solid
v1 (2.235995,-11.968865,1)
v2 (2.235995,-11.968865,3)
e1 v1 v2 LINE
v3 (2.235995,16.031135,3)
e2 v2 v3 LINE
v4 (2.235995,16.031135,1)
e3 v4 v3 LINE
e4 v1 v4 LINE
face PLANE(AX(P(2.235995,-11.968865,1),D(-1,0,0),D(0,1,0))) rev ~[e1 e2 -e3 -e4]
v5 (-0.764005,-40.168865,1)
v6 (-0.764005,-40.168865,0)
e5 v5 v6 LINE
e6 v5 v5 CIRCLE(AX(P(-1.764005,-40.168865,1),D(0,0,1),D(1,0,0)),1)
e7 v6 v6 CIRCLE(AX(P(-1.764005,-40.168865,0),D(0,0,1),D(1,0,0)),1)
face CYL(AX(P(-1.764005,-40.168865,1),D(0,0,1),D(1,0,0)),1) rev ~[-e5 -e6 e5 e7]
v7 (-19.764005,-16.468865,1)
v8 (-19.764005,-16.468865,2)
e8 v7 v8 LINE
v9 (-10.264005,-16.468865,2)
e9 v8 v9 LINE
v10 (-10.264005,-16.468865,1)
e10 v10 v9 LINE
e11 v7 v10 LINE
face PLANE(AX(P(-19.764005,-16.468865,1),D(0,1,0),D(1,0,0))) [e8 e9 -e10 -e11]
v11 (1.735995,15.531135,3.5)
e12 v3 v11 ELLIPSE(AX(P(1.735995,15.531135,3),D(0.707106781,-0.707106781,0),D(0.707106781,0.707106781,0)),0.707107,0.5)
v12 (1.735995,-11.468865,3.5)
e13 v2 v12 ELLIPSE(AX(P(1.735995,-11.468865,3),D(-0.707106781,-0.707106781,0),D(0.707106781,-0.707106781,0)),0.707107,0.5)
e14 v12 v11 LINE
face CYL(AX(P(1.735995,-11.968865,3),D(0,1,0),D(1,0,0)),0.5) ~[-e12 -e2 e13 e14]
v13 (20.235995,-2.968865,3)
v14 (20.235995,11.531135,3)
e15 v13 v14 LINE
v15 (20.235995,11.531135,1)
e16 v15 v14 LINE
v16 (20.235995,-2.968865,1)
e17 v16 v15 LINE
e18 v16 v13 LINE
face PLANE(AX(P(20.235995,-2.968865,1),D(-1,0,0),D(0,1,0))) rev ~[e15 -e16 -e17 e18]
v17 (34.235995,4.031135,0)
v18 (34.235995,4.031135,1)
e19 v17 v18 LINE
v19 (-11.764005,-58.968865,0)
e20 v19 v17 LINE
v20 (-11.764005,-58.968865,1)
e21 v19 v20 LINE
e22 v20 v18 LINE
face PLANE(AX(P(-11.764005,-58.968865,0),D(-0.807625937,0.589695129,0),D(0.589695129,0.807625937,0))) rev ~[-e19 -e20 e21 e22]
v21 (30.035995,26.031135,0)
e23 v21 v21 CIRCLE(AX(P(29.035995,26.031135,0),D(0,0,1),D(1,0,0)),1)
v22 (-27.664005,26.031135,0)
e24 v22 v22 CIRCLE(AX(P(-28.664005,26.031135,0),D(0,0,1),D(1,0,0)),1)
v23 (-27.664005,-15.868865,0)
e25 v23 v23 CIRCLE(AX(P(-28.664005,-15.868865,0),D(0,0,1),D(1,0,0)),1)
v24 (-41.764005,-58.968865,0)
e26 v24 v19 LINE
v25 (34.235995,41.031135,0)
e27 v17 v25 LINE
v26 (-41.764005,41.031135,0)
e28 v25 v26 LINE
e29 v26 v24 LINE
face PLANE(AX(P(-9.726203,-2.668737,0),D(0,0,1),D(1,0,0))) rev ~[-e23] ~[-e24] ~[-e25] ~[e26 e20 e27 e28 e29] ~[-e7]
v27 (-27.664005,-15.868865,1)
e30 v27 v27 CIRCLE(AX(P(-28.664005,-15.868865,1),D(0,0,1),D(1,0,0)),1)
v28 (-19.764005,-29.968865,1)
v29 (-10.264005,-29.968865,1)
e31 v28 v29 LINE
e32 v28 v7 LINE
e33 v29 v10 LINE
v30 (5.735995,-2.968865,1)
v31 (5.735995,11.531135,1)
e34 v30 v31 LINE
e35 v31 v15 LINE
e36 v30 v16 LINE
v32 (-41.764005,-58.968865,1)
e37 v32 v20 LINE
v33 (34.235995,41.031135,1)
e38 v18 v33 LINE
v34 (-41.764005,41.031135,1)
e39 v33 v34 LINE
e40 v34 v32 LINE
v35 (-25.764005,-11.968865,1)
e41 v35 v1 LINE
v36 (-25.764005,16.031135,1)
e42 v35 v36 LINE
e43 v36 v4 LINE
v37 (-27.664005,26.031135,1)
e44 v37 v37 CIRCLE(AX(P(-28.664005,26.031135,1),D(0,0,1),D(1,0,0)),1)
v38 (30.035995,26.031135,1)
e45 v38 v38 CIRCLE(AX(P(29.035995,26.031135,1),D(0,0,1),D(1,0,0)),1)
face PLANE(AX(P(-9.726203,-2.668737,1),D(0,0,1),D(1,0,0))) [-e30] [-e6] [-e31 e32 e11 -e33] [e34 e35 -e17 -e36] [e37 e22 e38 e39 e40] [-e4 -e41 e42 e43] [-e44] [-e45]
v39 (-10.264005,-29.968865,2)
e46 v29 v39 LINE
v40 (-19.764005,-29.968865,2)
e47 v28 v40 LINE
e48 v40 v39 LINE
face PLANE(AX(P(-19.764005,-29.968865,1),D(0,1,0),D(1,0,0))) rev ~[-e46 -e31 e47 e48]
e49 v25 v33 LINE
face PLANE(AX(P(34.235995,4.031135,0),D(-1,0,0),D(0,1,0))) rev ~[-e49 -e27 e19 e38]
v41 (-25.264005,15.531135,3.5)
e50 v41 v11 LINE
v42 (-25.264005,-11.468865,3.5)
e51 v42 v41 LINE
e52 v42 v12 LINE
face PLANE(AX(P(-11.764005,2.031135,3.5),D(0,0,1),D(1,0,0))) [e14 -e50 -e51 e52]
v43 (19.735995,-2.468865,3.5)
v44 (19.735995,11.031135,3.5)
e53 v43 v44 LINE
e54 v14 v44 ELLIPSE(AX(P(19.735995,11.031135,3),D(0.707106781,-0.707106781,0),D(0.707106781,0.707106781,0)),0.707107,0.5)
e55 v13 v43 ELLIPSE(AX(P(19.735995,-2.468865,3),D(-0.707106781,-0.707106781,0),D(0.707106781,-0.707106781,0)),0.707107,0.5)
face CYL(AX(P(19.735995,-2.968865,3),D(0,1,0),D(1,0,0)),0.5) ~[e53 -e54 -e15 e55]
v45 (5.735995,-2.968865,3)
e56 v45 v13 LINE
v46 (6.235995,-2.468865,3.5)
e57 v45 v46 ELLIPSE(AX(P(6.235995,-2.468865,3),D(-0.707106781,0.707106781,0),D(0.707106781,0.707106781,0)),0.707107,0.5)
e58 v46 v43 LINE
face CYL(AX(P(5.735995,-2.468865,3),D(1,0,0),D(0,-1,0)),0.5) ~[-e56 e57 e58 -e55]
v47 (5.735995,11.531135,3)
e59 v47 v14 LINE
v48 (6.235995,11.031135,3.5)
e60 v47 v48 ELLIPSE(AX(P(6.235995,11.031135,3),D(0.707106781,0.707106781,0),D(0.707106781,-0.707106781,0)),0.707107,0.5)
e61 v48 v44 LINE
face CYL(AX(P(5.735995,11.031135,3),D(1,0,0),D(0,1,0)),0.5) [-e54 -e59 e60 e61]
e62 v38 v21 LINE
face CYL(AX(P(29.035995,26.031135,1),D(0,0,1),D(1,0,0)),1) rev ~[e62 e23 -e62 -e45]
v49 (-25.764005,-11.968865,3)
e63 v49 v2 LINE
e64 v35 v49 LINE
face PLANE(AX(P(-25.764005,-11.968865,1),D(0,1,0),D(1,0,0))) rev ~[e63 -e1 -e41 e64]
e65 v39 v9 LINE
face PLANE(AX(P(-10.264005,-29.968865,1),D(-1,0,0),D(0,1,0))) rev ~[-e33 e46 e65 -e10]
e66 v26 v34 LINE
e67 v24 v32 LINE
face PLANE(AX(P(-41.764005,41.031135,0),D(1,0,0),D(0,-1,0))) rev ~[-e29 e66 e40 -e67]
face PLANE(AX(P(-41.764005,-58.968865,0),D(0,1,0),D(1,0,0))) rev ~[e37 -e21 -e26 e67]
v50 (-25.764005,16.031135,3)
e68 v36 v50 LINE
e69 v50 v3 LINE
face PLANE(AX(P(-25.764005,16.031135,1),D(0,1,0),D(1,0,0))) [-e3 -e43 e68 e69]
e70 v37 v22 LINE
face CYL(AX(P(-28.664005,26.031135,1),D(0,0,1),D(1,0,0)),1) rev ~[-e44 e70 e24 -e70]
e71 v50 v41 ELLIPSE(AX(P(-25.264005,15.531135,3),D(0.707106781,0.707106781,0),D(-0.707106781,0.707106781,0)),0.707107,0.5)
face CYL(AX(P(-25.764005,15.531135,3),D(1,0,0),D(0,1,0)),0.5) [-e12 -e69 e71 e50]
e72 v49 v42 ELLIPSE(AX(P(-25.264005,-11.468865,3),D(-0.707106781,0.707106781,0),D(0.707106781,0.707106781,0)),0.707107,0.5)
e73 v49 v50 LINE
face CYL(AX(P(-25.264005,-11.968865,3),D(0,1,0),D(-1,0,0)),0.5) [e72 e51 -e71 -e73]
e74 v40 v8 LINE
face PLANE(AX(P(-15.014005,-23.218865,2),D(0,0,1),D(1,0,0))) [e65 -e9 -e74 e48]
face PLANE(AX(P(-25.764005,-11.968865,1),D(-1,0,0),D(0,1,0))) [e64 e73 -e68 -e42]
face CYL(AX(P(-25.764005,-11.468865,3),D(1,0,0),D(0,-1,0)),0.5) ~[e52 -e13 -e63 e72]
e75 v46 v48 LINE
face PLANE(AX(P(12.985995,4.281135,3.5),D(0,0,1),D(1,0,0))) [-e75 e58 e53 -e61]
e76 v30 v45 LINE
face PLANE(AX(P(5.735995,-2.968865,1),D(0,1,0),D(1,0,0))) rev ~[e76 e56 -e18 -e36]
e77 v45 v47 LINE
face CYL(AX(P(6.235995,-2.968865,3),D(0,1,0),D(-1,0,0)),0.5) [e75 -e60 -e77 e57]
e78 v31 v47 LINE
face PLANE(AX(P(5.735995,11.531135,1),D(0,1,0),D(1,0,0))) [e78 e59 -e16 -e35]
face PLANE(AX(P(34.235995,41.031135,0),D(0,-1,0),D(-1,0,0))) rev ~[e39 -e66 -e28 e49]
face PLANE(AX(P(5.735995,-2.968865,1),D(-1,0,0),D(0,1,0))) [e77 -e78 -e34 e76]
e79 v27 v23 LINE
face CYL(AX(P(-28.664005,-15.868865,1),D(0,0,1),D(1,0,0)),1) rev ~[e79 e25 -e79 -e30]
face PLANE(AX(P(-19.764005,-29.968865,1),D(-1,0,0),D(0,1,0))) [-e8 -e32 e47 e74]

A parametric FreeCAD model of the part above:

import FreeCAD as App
import Part
import Sketcher
from FreeCAD import Vector


def edges_at(feature, points):
    """Names of the edges that pass closest to the given points."""
    edges = feature.Shape.Edges
    near = lambda p: min(range(len(edges)), key=lambda i: edges[i].distToShape(Part.Vertex(*p))[0])
    return sorted({f"Edge{near(p) + 1}" for p in points})

doc = App.newDocument("Part")
body = doc.addObject("PartDesign::Body", "Body")

sketch1 = body.newObject("Sketcher::SketchObject", "Sketch")
sketch1.AttachmentSupport = (doc.getObject("XY_Plane"), [""])
sketch1.MapMode = "FlatFace"
sketch1.addGeometry([
    Part.LineSegment(Vector(-42, 41, 0), Vector(-42, -59, 0)),
    Part.LineSegment(Vector(-42, -59, 0), Vector(-12, -59, 0)),
    Part.LineSegment(Vector(-12, -59, 0), Vector(34, 4, 0)),
    Part.LineSegment(Vector(34, 4, 0), Vector(34, 41, 0)),
    Part.LineSegment(Vector(34, 41, 0), Vector(-42, 41, 0)),
], False)
sketch1.addConstraint([
    Sketcher.Constraint("Coincident", 0, 2, 1, 1),
    Sketcher.Constraint("Coincident", 1, 2, 2, 1),
    Sketcher.Constraint("Coincident", 2, 2, 3, 1),
    Sketcher.Constraint("Coincident", 3, 2, 4, 1),
    Sketcher.Constraint("Coincident", 4, 2, 0, 1),
    Sketcher.Constraint("Vertical", 0),
    Sketcher.Constraint("Horizontal", 1),
    Sketcher.Constraint("Vertical", 3),
    Sketcher.Constraint("Horizontal", 4),
    Sketcher.Constraint("DistanceX", 1, 1, 1, 2, 30.0),
    Sketcher.Constraint("DistanceX", 4, 2, 4, 1, 76.0),
    Sketcher.Constraint("DistanceY", 0, 2, 0, 1, 100.0),
    Sketcher.Constraint("DistanceY", 3, 1, 3, 2, 37.0),
    Sketcher.Constraint("DistanceX", 0, 2, -1, 1, 41.764005),
    Sketcher.Constraint("DistanceY", 0, 2, -1, 1, 58.968865),
])
pad1 = body.newObject("PartDesign::Pad", "Pad")
pad1.Profile = sketch1
pad1.Length = 1

sketch2 = body.newObject("Sketcher::SketchObject", "Sketch001")
sketch2.AttachmentSupport = (doc.getObject("XY_Plane"), [""])
sketch2.MapMode = "FlatFace"
sketch2.AttachmentOffset = App.Placement(Vector(0, 0, 1), App.Rotation())
sketch2.addGeometry([
    Part.Circle(Vector(-28.7, 26, 0), Vector(0, 0, 1), 1),
    Part.Circle(Vector(-28.7, -15.9, 0), Vector(0, 0, 1), 1),
    Part.Circle(Vector(29, 26, 0), Vector(0, 0, 1), 1),
    Part.Circle(Vector(-1.8, -40.2, 0), Vector(0, 0, 1), 1),
], False)
sketch2.addConstraint([
    Sketcher.Constraint("Equal", 0, 1),
    Sketcher.Constraint("Equal", 1, 2),
    Sketcher.Constraint("Equal", 2, 3),
    Sketcher.Constraint("Horizontal", 0, 3, 2, 3),
    Sketcher.Constraint("Vertical", 0, 3, 1, 3),
    Sketcher.Constraint("Diameter", 0, 2.0),
    Sketcher.Constraint("DistanceY", 1, 3, 0, 3, 41.9),
    Sketcher.Constraint("DistanceX", 0, 3, 2, 3, 57.7),
    Sketcher.Constraint("DistanceX", 1, 3, 3, 3, 26.9),
    Sketcher.Constraint("DistanceY", 3, 3, 1, 3, 24.3),
    Sketcher.Constraint("DistanceX", 0, 3, -1, 1, 28.664005),
    Sketcher.Constraint("DistanceY", -1, 1, 0, 3, 26.031135),
])
pocket1 = body.newObject("PartDesign::Pocket", "Pocket")
pocket1.Profile = sketch2
pocket1.Length = 2

sketch3 = body.newObject("Sketcher::SketchObject", "Sketch002")
sketch3.AttachmentSupport = (doc.getObject("XY_Plane"), [""])
sketch3.MapMode = "FlatFace"
sketch3.AttachmentOffset = App.Placement(Vector(0, 0, 1), App.Rotation())
sketch3.addGeometry([
    Part.LineSegment(Vector(-26, 16, 0), Vector(-26, -12, 0)),
    Part.LineSegment(Vector(-26, -12, 0), Vector(2, -12, 0)),
    Part.LineSegment(Vector(2, -12, 0), Vector(2, 16, 0)),
    Part.LineSegment(Vector(2, 16, 0), Vector(-26, 16, 0)),
    Part.LineSegment(Vector(6, 12, 0), Vector(6, -3, 0)),
    Part.LineSegment(Vector(6, -3, 0), Vector(20, -3, 0)),
    Part.LineSegment(Vector(20, -3, 0), Vector(20, 12, 0)),
    Part.LineSegment(Vector(20, 12, 0), Vector(6, 12, 0)),
], False)
sketch3.addConstraint([
    Sketcher.Constraint("Coincident", 0, 2, 1, 1),
    Sketcher.Constraint("Coincident", 1, 2, 2, 1),
    Sketcher.Constraint("Coincident", 2, 2, 3, 1),
    Sketcher.Constraint("Coincident", 3, 2, 0, 1),
    Sketcher.Constraint("Coincident", 4, 2, 5, 1),
    Sketcher.Constraint("Coincident", 5, 2, 6, 1),
    Sketcher.Constraint("Coincident", 6, 2, 7, 1),
    Sketcher.Constraint("Coincident", 7, 2, 4, 1),
    Sketcher.Constraint("Vertical", 0),
    Sketcher.Constraint("Horizontal", 1),
    Sketcher.Constraint("Vertical", 2),
    Sketcher.Constraint("Horizontal", 3),
    Sketcher.Constraint("Vertical", 4),
    Sketcher.Constraint("Horizontal", 5),
    Sketcher.Constraint("Vertical", 6),
    Sketcher.Constraint("Horizontal", 7),
    Sketcher.Constraint("Equal", 3, 0),
    Sketcher.Constraint("Equal", 7, 4),
    Sketcher.Constraint("DistanceX", 1, 1, 1, 2, 28.0),
    Sketcher.Constraint("DistanceX", 5, 1, 5, 2, 14.5),
    Sketcher.Constraint("DistanceY", 1, 2, 4, 2, 9.0),
    Sketcher.Constraint("DistanceX", 1, 2, 5, 2, 18.0),
    Sketcher.Constraint("DistanceX", 0, 2, -1, 1, 25.764005),
    Sketcher.Constraint("DistanceY", 0, 2, -1, 1, 11.968865),
])
pad2 = body.newObject("PartDesign::Pad", "Pad001")
pad2.Profile = sketch3
pad2.Length = 2.5
doc.recompute()

fillet = body.newObject("PartDesign::Fillet", "Fillet")
fillet.Base = (pad2, edges_at(pad2, [
    (-11.764, -11.969, 3.5),
    (-25.764, 2.031, 3.5),
    (-11.764, 16.031, 3.5),
    (2.236, 2.031, 3.5),
    (12.986, 11.531, 3.5),
    (5.736, 4.281, 3.5),
    (12.986, -2.969, 3.5),
    (20.236, 4.281, 3.5),
]))
fillet.Radius = 0.5

sketch4 = body.newObject("Sketcher::SketchObject", "Sketch003")
sketch4.AttachmentSupport = (doc.getObject("XY_Plane"), [""])
sketch4.MapMode = "FlatFace"
sketch4.AttachmentOffset = App.Placement(Vector(0, 0, 1), App.Rotation())
sketch4.addGeometry([
    Part.LineSegment(Vector(-20, -16, 0), Vector(-20, -30, 0)),
    Part.LineSegment(Vector(-20, -30, 0), Vector(-10, -30, 0)),
    Part.LineSegment(Vector(-10, -30, 0), Vector(-10, -16, 0)),
    Part.LineSegment(Vector(-10, -16, 0), Vector(-20, -16, 0)),
], False)
sketch4.addConstraint([
    Sketcher.Constraint("Coincident", 0, 2, 1, 1),
    Sketcher.Constraint("Coincident", 1, 2, 2, 1),
    Sketcher.Constraint("Coincident", 2, 2, 3, 1),
    Sketcher.Constraint("Coincident", 3, 2, 0, 1),
    Sketcher.Constraint("Vertical", 0),
    Sketcher.Constraint("Horizontal", 1),
    Sketcher.Constraint("Vertical", 2),
    Sketcher.Constraint("Horizontal", 3),
    Sketcher.Constraint("DistanceX", 1, 1, 1, 2, 9.5),
    Sketcher.Constraint("DistanceY", 0, 2, 0, 1, 13.5),
    Sketcher.Constraint("DistanceX", 0, 2, -1, 1, 19.764005),
    Sketcher.Constraint("DistanceY", 0, 2, -1, 1, 29.968865),
])
pad3 = body.newObject("PartDesign::Pad", "Pad002")
pad3.Profile = sketch4
pad3.Length = 1

doc.recompute()
